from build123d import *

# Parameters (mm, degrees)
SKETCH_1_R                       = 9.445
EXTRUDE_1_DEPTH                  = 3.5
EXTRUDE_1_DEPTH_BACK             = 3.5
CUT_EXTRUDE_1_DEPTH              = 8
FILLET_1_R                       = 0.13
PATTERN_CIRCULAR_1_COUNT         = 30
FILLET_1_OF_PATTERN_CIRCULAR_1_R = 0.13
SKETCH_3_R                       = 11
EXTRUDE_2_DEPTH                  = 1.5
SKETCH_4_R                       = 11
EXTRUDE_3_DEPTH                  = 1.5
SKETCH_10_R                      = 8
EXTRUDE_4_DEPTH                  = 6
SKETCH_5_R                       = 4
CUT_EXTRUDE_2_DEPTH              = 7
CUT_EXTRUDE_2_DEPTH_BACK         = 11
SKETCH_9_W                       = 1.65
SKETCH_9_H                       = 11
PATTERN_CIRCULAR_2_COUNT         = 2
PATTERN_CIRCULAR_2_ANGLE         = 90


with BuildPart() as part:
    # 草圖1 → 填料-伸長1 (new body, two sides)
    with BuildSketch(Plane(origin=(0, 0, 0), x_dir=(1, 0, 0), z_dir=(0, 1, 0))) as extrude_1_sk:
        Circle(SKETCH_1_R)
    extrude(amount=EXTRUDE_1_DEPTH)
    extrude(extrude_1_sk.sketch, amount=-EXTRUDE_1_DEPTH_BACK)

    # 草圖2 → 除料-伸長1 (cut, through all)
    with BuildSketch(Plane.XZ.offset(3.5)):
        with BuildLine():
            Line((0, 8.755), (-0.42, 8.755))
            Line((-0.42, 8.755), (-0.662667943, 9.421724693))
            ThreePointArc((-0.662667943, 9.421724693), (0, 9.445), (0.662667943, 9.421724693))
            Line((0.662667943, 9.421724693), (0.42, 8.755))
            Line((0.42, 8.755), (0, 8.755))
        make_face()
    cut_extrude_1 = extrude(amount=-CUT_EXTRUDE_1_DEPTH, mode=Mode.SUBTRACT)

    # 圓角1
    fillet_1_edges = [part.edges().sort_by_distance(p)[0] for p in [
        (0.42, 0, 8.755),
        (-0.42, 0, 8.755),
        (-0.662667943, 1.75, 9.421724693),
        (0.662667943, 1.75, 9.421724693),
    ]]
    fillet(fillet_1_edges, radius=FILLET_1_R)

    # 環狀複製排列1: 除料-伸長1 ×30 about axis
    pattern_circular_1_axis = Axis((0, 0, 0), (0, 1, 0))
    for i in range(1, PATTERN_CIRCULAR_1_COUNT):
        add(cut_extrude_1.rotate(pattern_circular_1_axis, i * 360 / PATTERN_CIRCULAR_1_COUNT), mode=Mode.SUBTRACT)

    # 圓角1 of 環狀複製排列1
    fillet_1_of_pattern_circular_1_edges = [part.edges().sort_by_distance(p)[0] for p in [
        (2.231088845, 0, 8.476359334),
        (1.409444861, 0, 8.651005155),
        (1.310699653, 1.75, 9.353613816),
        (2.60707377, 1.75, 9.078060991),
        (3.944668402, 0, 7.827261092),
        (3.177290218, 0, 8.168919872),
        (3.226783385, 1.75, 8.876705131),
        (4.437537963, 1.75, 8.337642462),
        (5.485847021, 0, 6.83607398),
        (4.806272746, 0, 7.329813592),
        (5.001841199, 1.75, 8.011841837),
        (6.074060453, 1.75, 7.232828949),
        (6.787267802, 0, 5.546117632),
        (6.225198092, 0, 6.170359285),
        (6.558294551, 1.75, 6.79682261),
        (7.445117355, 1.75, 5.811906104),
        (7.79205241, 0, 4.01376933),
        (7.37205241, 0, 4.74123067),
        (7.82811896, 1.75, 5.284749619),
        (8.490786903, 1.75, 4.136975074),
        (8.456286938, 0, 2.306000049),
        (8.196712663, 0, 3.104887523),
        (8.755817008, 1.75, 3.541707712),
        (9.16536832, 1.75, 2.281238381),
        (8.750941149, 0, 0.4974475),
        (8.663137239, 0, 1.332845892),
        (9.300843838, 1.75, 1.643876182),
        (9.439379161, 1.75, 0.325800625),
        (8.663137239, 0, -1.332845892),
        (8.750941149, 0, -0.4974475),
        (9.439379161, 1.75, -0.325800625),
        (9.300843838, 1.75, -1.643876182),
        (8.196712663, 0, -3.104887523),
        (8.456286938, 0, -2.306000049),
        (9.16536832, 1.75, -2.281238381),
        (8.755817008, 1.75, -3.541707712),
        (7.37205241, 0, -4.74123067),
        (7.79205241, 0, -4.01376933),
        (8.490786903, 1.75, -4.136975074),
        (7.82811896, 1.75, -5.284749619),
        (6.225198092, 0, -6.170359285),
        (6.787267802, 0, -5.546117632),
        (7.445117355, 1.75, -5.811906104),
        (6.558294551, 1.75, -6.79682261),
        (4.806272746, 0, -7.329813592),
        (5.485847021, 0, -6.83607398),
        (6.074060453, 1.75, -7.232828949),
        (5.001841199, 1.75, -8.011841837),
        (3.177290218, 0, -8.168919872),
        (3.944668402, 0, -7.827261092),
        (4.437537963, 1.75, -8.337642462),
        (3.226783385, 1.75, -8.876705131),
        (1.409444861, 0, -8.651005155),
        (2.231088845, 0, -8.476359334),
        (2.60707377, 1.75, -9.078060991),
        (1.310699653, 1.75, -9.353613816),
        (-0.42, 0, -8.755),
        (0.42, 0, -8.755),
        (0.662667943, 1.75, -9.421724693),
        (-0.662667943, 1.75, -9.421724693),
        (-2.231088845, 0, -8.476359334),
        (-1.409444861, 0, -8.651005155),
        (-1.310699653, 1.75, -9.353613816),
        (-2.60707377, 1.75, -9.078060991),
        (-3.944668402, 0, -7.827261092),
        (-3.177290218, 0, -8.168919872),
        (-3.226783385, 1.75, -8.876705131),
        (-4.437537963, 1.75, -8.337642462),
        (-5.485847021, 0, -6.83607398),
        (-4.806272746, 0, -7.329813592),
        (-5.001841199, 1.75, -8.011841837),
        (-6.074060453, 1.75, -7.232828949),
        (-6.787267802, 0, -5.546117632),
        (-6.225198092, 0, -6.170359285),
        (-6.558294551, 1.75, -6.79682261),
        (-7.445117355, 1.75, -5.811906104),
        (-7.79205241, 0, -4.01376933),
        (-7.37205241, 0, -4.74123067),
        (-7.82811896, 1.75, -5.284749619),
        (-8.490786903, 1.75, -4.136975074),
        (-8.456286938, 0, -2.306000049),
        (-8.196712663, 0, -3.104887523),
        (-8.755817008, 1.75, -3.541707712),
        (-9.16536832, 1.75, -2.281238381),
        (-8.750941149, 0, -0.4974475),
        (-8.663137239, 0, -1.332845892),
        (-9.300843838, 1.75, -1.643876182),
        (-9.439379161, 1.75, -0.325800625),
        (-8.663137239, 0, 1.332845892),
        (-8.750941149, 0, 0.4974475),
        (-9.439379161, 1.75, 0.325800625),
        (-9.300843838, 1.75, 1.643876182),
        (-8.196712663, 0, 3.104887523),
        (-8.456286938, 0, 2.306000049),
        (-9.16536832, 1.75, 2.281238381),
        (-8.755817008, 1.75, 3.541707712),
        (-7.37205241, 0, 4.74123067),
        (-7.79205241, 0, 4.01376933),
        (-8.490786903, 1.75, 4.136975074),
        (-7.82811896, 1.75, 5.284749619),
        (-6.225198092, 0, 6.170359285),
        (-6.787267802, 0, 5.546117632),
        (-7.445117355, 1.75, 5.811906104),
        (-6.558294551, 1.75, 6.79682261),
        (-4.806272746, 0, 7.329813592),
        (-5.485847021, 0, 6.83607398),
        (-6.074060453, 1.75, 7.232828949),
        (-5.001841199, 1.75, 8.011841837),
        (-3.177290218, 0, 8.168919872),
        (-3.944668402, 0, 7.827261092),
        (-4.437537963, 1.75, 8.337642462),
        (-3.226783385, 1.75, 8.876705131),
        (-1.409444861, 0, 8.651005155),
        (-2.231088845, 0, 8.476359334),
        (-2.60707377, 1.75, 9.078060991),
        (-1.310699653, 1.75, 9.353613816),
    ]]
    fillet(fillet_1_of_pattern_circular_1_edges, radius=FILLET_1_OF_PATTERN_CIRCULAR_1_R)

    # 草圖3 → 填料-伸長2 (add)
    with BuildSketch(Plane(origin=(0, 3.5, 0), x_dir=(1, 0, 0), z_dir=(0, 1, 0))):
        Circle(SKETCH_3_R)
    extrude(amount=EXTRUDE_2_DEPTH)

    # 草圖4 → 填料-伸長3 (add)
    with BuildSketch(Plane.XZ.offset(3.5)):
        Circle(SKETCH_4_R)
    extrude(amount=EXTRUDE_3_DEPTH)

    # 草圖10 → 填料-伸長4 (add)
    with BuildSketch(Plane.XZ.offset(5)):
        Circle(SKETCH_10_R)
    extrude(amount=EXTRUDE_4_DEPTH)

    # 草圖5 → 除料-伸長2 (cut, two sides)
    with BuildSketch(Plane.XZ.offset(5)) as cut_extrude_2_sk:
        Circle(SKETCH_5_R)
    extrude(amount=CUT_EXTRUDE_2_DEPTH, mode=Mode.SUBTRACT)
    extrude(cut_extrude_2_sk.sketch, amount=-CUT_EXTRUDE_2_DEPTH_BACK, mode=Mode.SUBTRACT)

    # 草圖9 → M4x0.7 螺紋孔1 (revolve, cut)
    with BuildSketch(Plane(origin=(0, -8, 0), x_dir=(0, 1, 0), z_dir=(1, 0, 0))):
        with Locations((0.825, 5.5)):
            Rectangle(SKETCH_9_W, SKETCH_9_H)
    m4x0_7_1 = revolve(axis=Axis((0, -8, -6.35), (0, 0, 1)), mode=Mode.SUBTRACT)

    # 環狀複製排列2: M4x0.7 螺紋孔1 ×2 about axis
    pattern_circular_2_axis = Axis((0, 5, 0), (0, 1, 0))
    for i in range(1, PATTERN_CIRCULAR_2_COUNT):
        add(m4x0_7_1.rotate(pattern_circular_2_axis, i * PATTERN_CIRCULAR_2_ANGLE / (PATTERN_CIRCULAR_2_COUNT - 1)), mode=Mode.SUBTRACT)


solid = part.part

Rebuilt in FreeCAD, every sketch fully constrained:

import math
import FreeCAD as App
import Part
import Sketcher
from FreeCAD import Vector
Q = App.Units.Quantity


def edges_at(feature, points):
    """Names of the edges that pass closest to the given points."""
    edges = feature.Shape.Edges
    near = lambda p: min(range(len(edges)), key=lambda i: edges[i].distToShape(Part.Vertex(*p))[0])
    return sorted({f"Edge{near(p) + 1}" for p in points})


def add_polygon(sketch, points):
    """Adds a closed chain of lines whose ends are joined by coincident constraints."""
    first, n = sketch.GeometryCount, len(points)
    for a, b in zip(points, points[1:] + points[:1]):
        sketch.addGeometry(Part.LineSegment(App.Vector(*a, 0), App.Vector(*b, 0)), False)
    for i in range(n):
        sketch.addConstraint(Sketcher.Constraint("Coincident", first + i, 2, first + (i + 1) % n, 1))

doc = App.newDocument("Part")
body = doc.addObject("PartDesign::Body", "Body")

# Sketch on XZ plane
sketch1 = body.newObject("Sketcher::SketchObject", "Sketch")
sketch1.AttachmentSupport = (doc.getObject("XZ_Plane"), [""])
sketch1.MapMode = "FlatFace"
sketch1.addGeometry(Part.Circle(Vector(0, 0, 0), Vector(0, 0, 1), 9.445), False)
sketch1.addConstraint(Sketcher.Constraint("Coincident", 0, 3, -1, 1))
sketch1.addConstraint(Sketcher.Constraint("Diameter", 0, 18.89))
pad1 = body.newObject("PartDesign::Pad", "Pad")
pad1.Profile = sketch1
pad1.Type = "TwoLengths"
pad1.Length = 3.5
pad1.Length2 = 3.5
pad1.Reversed = True

# Sketch on XZ plane
sketch2 = body.newObject("Sketcher::SketchObject", "Sketch001")
sketch2.AttachmentSupport = (doc.getObject("XZ_Plane"), [""])
sketch2.MapMode = "FlatFace"
sketch2.AttachmentOffset = App.Placement(Vector(0, 0, 3.5), App.Rotation())
sketch2.addGeometry(Part.LineSegment(Vector(-0.662668, 9.421725, 0), Vector(-0.42, 8.755, 0)), False)
sketch2.addGeometry(Part.LineSegment(Vector(-0.42, 8.755, 0), Vector(0.42, 8.755, 0)), False)
sketch2.addGeometry(Part.LineSegment(Vector(0.42, 8.755, 0), Vector(0.662668, 9.421725, 0)), False)
sketch2.addGeometry(Part.ArcOfCircle(Part.Circle(Vector(0, 0, 0), Vector(0, 0, 1), 9.445), math.radians(85.976782), math.radians(94.023218)), False)
sketch2.addConstraint(Sketcher.Constraint("Coincident", 0, 2, 1, 1))
sketch2.addConstraint(Sketcher.Constraint("Coincident", 1, 2, 2, 1))
sketch2.addConstraint(Sketcher.Constraint("Coincident", 2, 2, 3, 1))
sketch2.addConstraint(Sketcher.Constraint("Coincident", 3, 2, 0, 1))
sketch2.addConstraint(Sketcher.Constraint("Horizontal", 1))
sketch2.addConstraint(Sketcher.Constraint("Coincident", 3, 3, -1, 1))
sketch2.addConstraint(Sketcher.Constraint("Horizontal", 2, 2, 3, 2))
sketch2.addConstraint(Sketcher.Constraint("Equal", 0, 2))
sketch2.addConstraint(Sketcher.Constraint("Angle", 0, Q("-70 deg")))
sketch2.addConstraint(Sketcher.Constraint("Radius", 3, 9.445))
sketch2.addConstraint(Sketcher.Constraint("DistanceX", 1, 1, 1, 2, 0.84))
sketch2.addConstraint(Sketcher.Constraint("DistanceY", -1, 1, 0, 2, 8.755))
pocket1 = body.newObject("PartDesign::Pocket", "Pocket")
pocket1.Profile = sketch2
pocket1.Type = "ThroughAll"
doc.recompute()

fillet = body.newObject("PartDesign::Fillet", "Fillet")
fillet.Base = (pocket1, edges_at(pocket1, [
    (0.42, 0, 8.755),
    (-0.42, 0, 8.755),
    (-0.663, 0, 9.422),
    (0.663, 0, 9.422),
]))
fillet.Radius = 0.13
doc.recompute()

polarpattern = body.newObject("PartDesign::PolarPattern", "PolarPattern")
polarpattern.Originals = [pocket1]
polarpattern.Axis = (doc.getObject("Y_Axis"), [""])
polarpattern.Angle = 360
polarpattern.Occurrences = 30
body.Tip = polarpattern
doc.recompute()

fillet2 = body.newObject("PartDesign::Fillet", "Fillet001")
fillet2.Base = (polarpattern, edges_at(polarpattern, [
    (2.231, 0, 8.476),
    (1.409, 0, 8.651),
    (1.311, 0, 9.354),
    (2.607, 0, 9.078),
    (3.945, 0, 7.827),
    (3.177, 0, 8.169),
    (3.227, 0, 8.877),
    (4.438, 0, 8.338),
    (5.486, 0, 6.836),
    (4.806, 0, 7.33),
    (5.002, 0, 8.012),
    (6.074, 0, 7.233),
    (6.787, 0, 5.546),
    (6.225, 0, 6.17),
    (6.558, 0, 6.797),
    (7.445, 0, 5.812),
    (7.792, 0, 4.014),
    (7.372, 0, 4.741),
    (7.828, 0, 5.285),
    (8.491, 0, 4.137),
    (8.456, 0, 2.306),
    (8.197, 0, 3.105),
    (8.756, 0, 3.542),
    (9.165, 0, 2.281),
    (8.751, 0, 0.497),
    (8.663, 0, 1.333),
    (9.301, 0, 1.644),
    (9.439, 0, 0.326),
    (8.663, 0, -1.333),
    (8.751, 0, -0.497),
    (9.439, 0, -0.326),
    (9.301, 0, -1.644),
    (8.197, 0, -3.105),
    (8.456, 0, -2.306),
    (9.165, 0, -2.281),
    (8.756, 0, -3.542),
    (7.372, 0, -4.741),
    (7.792, 0, -4.014),
    (8.491, 0, -4.137),
    (7.828, 0, -5.285),
    (6.225, 0, -6.17),
    (6.787, 0, -5.546),
    (7.445, 0, -5.812),
    (6.558, 0, -6.797),
    (4.806, 0, -7.33),
    (5.486, 0, -6.836),
    (6.074, 0, -7.233),
    (5.002, 0, -8.012),
    (3.177, 0, -8.169),
    (3.945, 0, -7.827),
    (4.438, 0, -8.338),
    (3.227, 0, -8.877),
    (1.409, 0, -8.651),
    (2.231, 0, -8.476),
    (2.607, 0, -9.078),
    (1.311, 0, -9.354),
    (-0.42, 0, -8.755),
    (0.42, 0, -8.755),
    (0.663, 0, -9.422),
    (-0.663, 0, -9.422),
    (-2.231, 0, -8.476),
    (-1.409, 0, -8.651),
    (-1.311, 0, -9.354),
    (-2.607, 0, -9.078),
    (-3.945, 0, -7.827),
    (-3.177, 0, -8.169),
    (-3.227, 0, -8.877),
    (-4.438, 0, -8.338),
    (-5.486, 0, -6.836),
    (-4.806, 0, -7.33),
    (-5.002, 0, -8.012),
    (-6.074, 0, -7.233),
    (-6.787, 0, -5.546),
    (-6.225, 0, -6.17),
    (-6.558, 0, -6.797),
    (-7.445, 0, -5.812),
    (-7.792, 0, -4.014),
    (-7.372, 0, -4.741),
    (-7.828, 0, -5.285),
    (-8.491, 0, -4.137),
    (-8.456, 0, -2.306),
    (-8.197, 0, -3.105),
    (-8.756, 0, -3.542),
    (-9.165, 0, -2.281),
    (-8.751, 0, -0.497),
    (-8.663, 0, -1.333),
    (-9.301, 0, -1.644),
    (-9.439, 0, -0.326),
    (-8.663, 0, 1.333),
    (-8.751, 0, 0.497),
    (-9.439, 0, 0.326),
    (-9.301, 0, 1.644),
    (-8.197, 0, 3.105),
    (-8.456, 0, 2.306),
    (-9.165, 0, 2.281),
    (-8.756, 0, 3.542),
    (-7.372, 0, 4.741),
    (-7.792, 0, 4.014),
    (-8.491, 0, 4.137),
    (-7.828, 0, 5.285),
    (-6.225, 0, 6.17),
    (-6.787, 0, 5.546),
    (-7.445, 0, 5.812),
    (-6.558, 0, 6.797),
    (-4.806, 0, 7.33),
    (-5.486, 0, 6.836),
    (-6.074, 0, 7.233),
    (-5.002, 0, 8.012),
    (-3.177, 0, 8.169),
    (-3.945, 0, 7.827),
    (-4.438, 0, 8.338),
    (-3.227, 0, 8.877),
    (-1.409, 0, 8.651),
    (-2.231, 0, 8.476),
    (-2.607, 0, 9.078),
    (-1.311, 0, 9.354),
]))
fillet2.Radius = 0.13

# Sketch on XZ plane
sketch3 = body.newObject("Sketcher::SketchObject", "Sketch002")
sketch3.AttachmentSupport = (doc.getObject("XZ_Plane"), [""])
sketch3.MapMode = "FlatFace"
sketch3.AttachmentOffset = App.Placement(Vector(0, 0, -3.5), App.Rotation())
sketch3.addGeometry(Part.Circle(Vector(0, 0, 0), Vector(0, 0, 1), 11), False)
sketch3.addConstraint(Sketcher.Constraint("Coincident", 0, 3, -1, 1))
sketch3.addConstraint(Sketcher.Constraint("Diameter", 0, 22.0))
pad2 = body.newObject("PartDesign::Pad", "Pad001")
pad2.Profile = sketch3
pad2.Length = 1.5
pad2.Reversed = True

# Sketch on XZ plane
sketch4 = body.newObject("Sketcher::SketchObject", "Sketch003")
sketch4.AttachmentSupport = (doc.getObject("XZ_Plane"), [""])
sketch4.MapMode = "FlatFace"
sketch4.AttachmentOffset = App.Placement(Vector(0, 0, 3.5), App.Rotation())
sketch4.addGeometry(Part.Circle(Vector(0, 0, 0), Vector(0, 0, 1), 11), False)
sketch4.addConstraint(Sketcher.Constraint("Coincident", 0, 3, -1, 1))
sketch4.addConstraint(Sketcher.Constraint("Diameter", 0, 22.0))
pad3 = body.newObject("PartDesign::Pad", "Pad002")
pad3.Profile = sketch4
pad3.Length = 1.5

# Sketch on XZ plane
sketch5 = body.newObject("Sketcher::SketchObject", "Sketch004")
sketch5.AttachmentSupport = (doc.getObject("XZ_Plane"), [""])
sketch5.MapMode = "FlatFace"
sketch5.AttachmentOffset = App.Placement(Vector(0, 0, 5), App.Rotation())
sketch5.addGeometry(Part.Circle(Vector(0, 0, 0), Vector(0, 0, 1), 8), False)
sketch5.addConstraint(Sketcher.Constraint("Coincident", 0, 3, -1, 1))
sketch5.addConstraint(Sketcher.Constraint("Diameter", 0, 16.0))
pad4 = body.newObject("PartDesign::Pad", "Pad003")
pad4.Profile = sketch5
pad4.Length = 6

# Sketch on XZ plane
sketch6 = body.newObject("Sketcher::SketchObject", "Sketch005")
sketch6.AttachmentSupport = (doc.getObject("XZ_Plane"), [""])
sketch6.MapMode = "FlatFace"
sketch6.AttachmentOffset = App.Placement(Vector(0, 0, 5), App.Rotation())
sketch6.addGeometry(Part.Circle(Vector(0, 0, 0), Vector(0, 0, 1), 4), False)
sketch6.addConstraint(Sketcher.Constraint("Coincident", 0, 3, -1, 1))
sketch6.addConstraint(Sketcher.Constraint("Diameter", 0, 8.0))
pocket2 = body.newObject("PartDesign::Pocket", "Pocket001")
pocket2.Profile = sketch6
pocket2.Type = "ThroughAll"
pocket2.Midplane = True

# Sketch on YZ plane
sketch7 = body.newObject("Sketcher::SketchObject", "Sketch006")
sketch7.AttachmentSupport = (doc.getObject("YZ_Plane"), [""])
sketch7.MapMode = "FlatFace"
add_polygon(sketch7, [(-8, 11), (-8, 0), (-6.35, 0), (-6.35, 11)])  # lines 0-3
sketch7.addGeometry(Part.LineSegment(Vector(-8, 0, 0), Vector(-8, 11, 0)), True)  # axis
sketch7.addConstraint(Sketcher.Constraint("Vertical", 0))
sketch7.addConstraint(Sketcher.Constraint("Horizontal", 1))
sketch7.addConstraint(Sketcher.Constraint("Vertical", 2))
sketch7.addConstraint(Sketcher.Constraint("Horizontal", 3))
sketch7.addConstraint(Sketcher.Constraint("Vertical", 4))
sketch7.addConstraint(Sketcher.Constraint("Coincident", 4, 1, 0, 2))
sketch7.addConstraint(Sketcher.Constraint("PointOnObject", 0, 2, -1))
sketch7.addConstraint(Sketcher.Constraint("Horizontal", 2, 2, 4, 2))
sketch7.addConstraint(Sketcher.Constraint("DistanceY", 0, 2, 0, 1, 11.0))
sketch7.addConstraint(Sketcher.Constraint("DistanceX", 0, 2, -1, 1, 8.0))
sketch7.addConstraint(Sketcher.Constraint("DistanceX", 1, 1, 1, 2, 1.65))
groove = body.newObject("PartDesign::Groove", "Groove")
groove.Profile = sketch7
groove.ReferenceAxis = (sketch7, ["Axis0"])
groove.Angle = 360
doc.recompute()

polarpattern2 = body.newObject("PartDesign::PolarPattern", "PolarPattern001")
polarpattern2.Originals = [groove]
polarpattern2.Axis = (doc.getObject("Y_Axis"), [""])
polarpattern2.Angle = 90
polarpattern2.Occurrences = 2
body.Tip = polarpattern2

doc.recompute()
